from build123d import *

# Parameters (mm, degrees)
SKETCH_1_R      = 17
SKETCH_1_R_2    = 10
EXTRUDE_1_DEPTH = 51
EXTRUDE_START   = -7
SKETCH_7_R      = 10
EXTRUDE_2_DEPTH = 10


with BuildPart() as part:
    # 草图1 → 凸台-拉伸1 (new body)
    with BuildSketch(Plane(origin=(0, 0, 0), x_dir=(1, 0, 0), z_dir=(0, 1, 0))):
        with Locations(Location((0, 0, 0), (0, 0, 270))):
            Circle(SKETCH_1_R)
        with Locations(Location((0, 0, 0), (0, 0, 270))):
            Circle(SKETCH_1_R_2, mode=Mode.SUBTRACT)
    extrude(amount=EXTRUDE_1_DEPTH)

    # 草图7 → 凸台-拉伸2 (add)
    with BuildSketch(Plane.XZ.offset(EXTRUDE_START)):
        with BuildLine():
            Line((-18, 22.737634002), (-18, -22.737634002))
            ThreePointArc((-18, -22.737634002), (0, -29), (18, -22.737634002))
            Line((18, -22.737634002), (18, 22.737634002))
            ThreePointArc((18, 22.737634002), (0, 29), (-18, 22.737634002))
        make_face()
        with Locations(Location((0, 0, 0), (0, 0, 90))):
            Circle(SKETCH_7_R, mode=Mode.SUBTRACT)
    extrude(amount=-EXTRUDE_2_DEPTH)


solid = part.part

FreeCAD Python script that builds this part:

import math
import FreeCAD as App
import Part
import Sketcher

V = App.Vector

doc = App.newDocument("Part")
body = doc.addObject("PartDesign::Body", "Body")

# Sketch on XZ plane
sketch1 = doc.addObject("Sketcher::SketchObject", "Sketch")
body.addObject(sketch1)
sketch1.AttachmentSupport = (doc.XZ_Plane, [""])
sketch1.MapMode = "FlatFace"
sketch1.addGeometry([
    Part.Circle(V(0, 0, 0), V(0, 0, 1), 17),
    Part.Circle(V(0, 0, 0), V(0, 0, 1), 10),
], False)
sketch1.addConstraint([
    Sketcher.Constraint("Coincident", 0, 3, -1, 1),
    Sketcher.Constraint("Coincident", 1, 3, -1, 1),
    Sketcher.Constraint("Diameter", 0, 34.0),
    Sketcher.Constraint("Diameter", 1, 20.0),
])
pad1 = doc.addObject("PartDesign::Pad", "Pad")
body.addObject(pad1)
pad1.Profile = sketch1
pad1.Length = 51
pad1.Reversed = True

# Sketch on XZ plane
sketch2 = doc.addObject("Sketcher::SketchObject", "Sketch001")
body.addObject(sketch2)
sketch2.AttachmentSupport = (doc.XZ_Plane, [""])
sketch2.MapMode = "FlatFace"
sketch2.AttachmentOffset = App.Placement(V(0, 0, -7), App.Rotation())
sketch2.addGeometry([
    Part.LineSegment(V(-18, 23, 0), V(-18, -23, 0)),  # 0
    Part.ArcOfCircle(Part.Circle(V(0, 0, 0), V(0, 0, 1), 29), math.radians(-128), math.radians(-52)),  # 1
    Part.LineSegment(V(18, -23, 0), V(18, 23, 0)),  # 2
    Part.ArcOfCircle(Part.Circle(V(0, 0, 0), V(0, 0, 1), 29), math.radians(52), math.radians(128)),  # 3
    Part.Circle(V(0, 0, 0), V(0, 0, 1), 10),  # 4
], False)
sketch2.addConstraint([
    Sketcher.Constraint("Coincident", 0, 2, 1, 1),
    Sketcher.Constraint("Coincident", 1, 2, 2, 1),
    Sketcher.Constraint("Coincident", 2, 2, 3, 1),
    Sketcher.Constraint("Coincident", 3, 2, 0, 1),
    Sketcher.Constraint("Vertical", 0),
    Sketcher.Constraint("Vertical", 2),
    Sketcher.Constraint("Coincident", 1, 3, -1, 1),
    Sketcher.Constraint("Coincident", 3, 3, -1, 1),
    Sketcher.Constraint("Coincident", 4, 3, -1, 1),
    Sketcher.Constraint("Equal", 1, 3),
    Sketcher.Constraint("Horizontal", 0, 2, 1, 2),
    Sketcher.Constraint("Diameter", 4, 20.0),
    Sketcher.Constraint("Radius", 1, 29.0),
    Sketcher.Constraint("DistanceX", 0, 2, -1, 1, 18.0),
])
pad2 = doc.addObject("PartDesign::Pad", "Pad001")
body.addObject(pad2)
pad2.Profile = sketch2
pad2.Length = 10
pad2.Reversed = True

doc.recompute()
